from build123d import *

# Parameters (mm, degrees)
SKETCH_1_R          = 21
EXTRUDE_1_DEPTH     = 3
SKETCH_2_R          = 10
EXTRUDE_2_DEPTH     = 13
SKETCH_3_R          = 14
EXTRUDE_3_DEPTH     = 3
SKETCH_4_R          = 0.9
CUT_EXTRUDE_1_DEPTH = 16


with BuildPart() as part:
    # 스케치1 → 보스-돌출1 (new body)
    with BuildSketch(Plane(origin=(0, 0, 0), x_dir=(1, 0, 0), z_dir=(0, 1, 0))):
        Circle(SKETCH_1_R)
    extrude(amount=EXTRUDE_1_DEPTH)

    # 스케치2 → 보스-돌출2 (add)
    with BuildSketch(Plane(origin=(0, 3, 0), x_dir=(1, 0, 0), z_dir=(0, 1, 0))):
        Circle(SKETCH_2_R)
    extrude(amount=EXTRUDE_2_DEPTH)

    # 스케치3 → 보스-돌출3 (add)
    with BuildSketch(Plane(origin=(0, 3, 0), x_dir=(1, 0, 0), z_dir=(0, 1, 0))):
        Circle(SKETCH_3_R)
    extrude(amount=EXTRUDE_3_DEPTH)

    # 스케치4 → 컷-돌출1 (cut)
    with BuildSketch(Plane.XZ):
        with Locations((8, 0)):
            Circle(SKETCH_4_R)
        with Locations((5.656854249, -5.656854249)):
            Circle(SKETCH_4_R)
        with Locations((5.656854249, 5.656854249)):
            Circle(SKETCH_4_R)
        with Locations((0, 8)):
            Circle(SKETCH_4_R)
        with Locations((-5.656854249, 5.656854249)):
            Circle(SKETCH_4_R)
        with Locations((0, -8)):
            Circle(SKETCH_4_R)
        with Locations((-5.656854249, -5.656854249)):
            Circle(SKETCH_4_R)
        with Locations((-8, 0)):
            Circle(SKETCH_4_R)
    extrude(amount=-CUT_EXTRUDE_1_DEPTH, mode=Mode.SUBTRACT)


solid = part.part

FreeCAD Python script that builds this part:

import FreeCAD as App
import Part
import Sketcher

doc = App.newDocument("Part")
body = doc.addObject("PartDesign::Body", "Body")

# Sketch on XZ plane
sketch1 = body.newObject("Sketcher::SketchObject", "Sketch")
sketch1.AttachmentSupport = (doc.getObject("XZ_Plane"), [""])
sketch1.MapMode = "FlatFace"
sketch1.addGeometry(Part.Circle(App.Vector(0, 0, 0), App.Vector(0, 0, 1), 21), False)
sketch1.addConstraint([
    Sketcher.Constraint("Coincident", 0, 3, -1, 1),
    Sketcher.Constraint("Diameter", 0, 42.0),
])
pad1 = body.newObject("PartDesign::Pad", "Pad")
pad1.Profile = sketch1
pad1.Length = 3
pad1.Reversed = True

# Sketch on XZ plane
sketch2 = body.newObject("Sketcher::SketchObject", "Sketch001")
sketch2.AttachmentSupport = (doc.getObject("XZ_Plane"), [""])
sketch2.MapMode = "FlatFace"
sketch2.AttachmentOffset = App.Placement(App.Vector(0, 0, -3), App.Rotation())
sketch2.addGeometry(Part.Circle(App.Vector(0, 0, 0), App.Vector(0, 0, 1), 10), False)
sketch2.addConstraint([
    Sketcher.Constraint("Coincident", 0, 3, -1, 1),
    Sketcher.Constraint("Diameter", 0, 20.0),
])
pad2 = body.newObject("PartDesign::Pad", "Pad001")
pad2.Profile = sketch2
pad2.Length = 13
pad2.Reversed = True

# Sketch on XZ plane
sketch3 = body.newObject("Sketcher::SketchObject", "Sketch002")
sketch3.AttachmentSupport = (doc.getObject("XZ_Plane"), [""])
sketch3.MapMode = "FlatFace"
sketch3.AttachmentOffset = App.Placement(App.Vector(0, 0, -3), App.Rotation())
sketch3.addGeometry(Part.Circle(App.Vector(0, 0, 0), App.Vector(0, 0, 1), 14), False)
sketch3.addConstraint([
    Sketcher.Constraint("Coincident", 0, 3, -1, 1),
    Sketcher.Constraint("Diameter", 0, 28.0),
])
pad3 = body.newObject("PartDesign::Pad", "Pad002")
pad3.Profile = sketch3
pad3.Length = 3
pad3.Reversed = True

# Sketch on XZ plane
sketch4 = body.newObject("Sketcher::SketchObject", "Sketch003")
sketch4.AttachmentSupport = (doc.getObject("XZ_Plane"), [""])
sketch4.MapMode = "FlatFace"
sketch4.addGeometry([
    Part.Circle(App.Vector(8, 0, 0), App.Vector(0, 0, 1), 0.9),  # 0
    Part.Circle(App.Vector(5.7, -5.7, 0), App.Vector(0, 0, 1), 0.9),  # 1
    Part.Circle(App.Vector(5.7, 5.7, 0), App.Vector(0, 0, 1), 0.9),  # 2
    Part.Circle(App.Vector(0, 8, 0), App.Vector(0, 0, 1), 0.9),  # 3
    Part.Circle(App.Vector(-5.7, 5.7, 0), App.Vector(0, 0, 1), 0.9),  # 4
    Part.Circle(App.Vector(0, -8, 0), App.Vector(0, 0, 1), 0.9),  # 5
    Part.Circle(App.Vector(-5.7, -5.7, 0), App.Vector(0, 0, 1), 0.9),  # 6
    Part.Circle(App.Vector(-8, 0, 0), App.Vector(0, 0, 1), 0.9),  # 7
], False)
sketch4.addConstraint([
    Sketcher.Constraint("Equal", 0, 1),
    Sketcher.Constraint("Equal", 1, 2),
    Sketcher.Constraint("Equal", 2, 3),
    Sketcher.Constraint("Equal", 3, 4),
    Sketcher.Constraint("Equal", 4, 5),
    Sketcher.Constraint("Equal", 5, 6),
    Sketcher.Constraint("Equal", 6, 7),
    Sketcher.Constraint("Symmetric", 1, 3, 4, 3, -1, 1),
    Sketcher.Constraint("Symmetric", 3, 3, 5, 3, -1, 1),
    Sketcher.Constraint("Symmetric", 2, 3, 6, 3, -1, 1),
    Sketcher.Constraint("Symmetric", 0, 3, 7, 3, -1, 1),
    Sketcher.Constraint("Symmetric", 2, 3, 4, 3, -2),
    Sketcher.Constraint("PointOnObject", 0, 3, -1),
    Sketcher.Constraint("PointOnObject", 3, 3, -2),
    Sketcher.Constraint("Diameter", 0, 1.8),
    Sketcher.Constraint("DistanceX", -1, 1, 0, 3, 8.0),
    Sketcher.Constraint("DistanceY", -1, 1, 3, 3, 8.0),
    Sketcher.Constraint("DistanceY", 1, 3, 2, 3, 11.313708),
    Sketcher.Constraint("DistanceX", 4, 3, 2, 3, 11.313708),
])
pocket1 = body.newObject("PartDesign::Pocket", "Pocket")
pocket1.Profile = sketch4
pocket1.Length = 16

doc.recompute()
